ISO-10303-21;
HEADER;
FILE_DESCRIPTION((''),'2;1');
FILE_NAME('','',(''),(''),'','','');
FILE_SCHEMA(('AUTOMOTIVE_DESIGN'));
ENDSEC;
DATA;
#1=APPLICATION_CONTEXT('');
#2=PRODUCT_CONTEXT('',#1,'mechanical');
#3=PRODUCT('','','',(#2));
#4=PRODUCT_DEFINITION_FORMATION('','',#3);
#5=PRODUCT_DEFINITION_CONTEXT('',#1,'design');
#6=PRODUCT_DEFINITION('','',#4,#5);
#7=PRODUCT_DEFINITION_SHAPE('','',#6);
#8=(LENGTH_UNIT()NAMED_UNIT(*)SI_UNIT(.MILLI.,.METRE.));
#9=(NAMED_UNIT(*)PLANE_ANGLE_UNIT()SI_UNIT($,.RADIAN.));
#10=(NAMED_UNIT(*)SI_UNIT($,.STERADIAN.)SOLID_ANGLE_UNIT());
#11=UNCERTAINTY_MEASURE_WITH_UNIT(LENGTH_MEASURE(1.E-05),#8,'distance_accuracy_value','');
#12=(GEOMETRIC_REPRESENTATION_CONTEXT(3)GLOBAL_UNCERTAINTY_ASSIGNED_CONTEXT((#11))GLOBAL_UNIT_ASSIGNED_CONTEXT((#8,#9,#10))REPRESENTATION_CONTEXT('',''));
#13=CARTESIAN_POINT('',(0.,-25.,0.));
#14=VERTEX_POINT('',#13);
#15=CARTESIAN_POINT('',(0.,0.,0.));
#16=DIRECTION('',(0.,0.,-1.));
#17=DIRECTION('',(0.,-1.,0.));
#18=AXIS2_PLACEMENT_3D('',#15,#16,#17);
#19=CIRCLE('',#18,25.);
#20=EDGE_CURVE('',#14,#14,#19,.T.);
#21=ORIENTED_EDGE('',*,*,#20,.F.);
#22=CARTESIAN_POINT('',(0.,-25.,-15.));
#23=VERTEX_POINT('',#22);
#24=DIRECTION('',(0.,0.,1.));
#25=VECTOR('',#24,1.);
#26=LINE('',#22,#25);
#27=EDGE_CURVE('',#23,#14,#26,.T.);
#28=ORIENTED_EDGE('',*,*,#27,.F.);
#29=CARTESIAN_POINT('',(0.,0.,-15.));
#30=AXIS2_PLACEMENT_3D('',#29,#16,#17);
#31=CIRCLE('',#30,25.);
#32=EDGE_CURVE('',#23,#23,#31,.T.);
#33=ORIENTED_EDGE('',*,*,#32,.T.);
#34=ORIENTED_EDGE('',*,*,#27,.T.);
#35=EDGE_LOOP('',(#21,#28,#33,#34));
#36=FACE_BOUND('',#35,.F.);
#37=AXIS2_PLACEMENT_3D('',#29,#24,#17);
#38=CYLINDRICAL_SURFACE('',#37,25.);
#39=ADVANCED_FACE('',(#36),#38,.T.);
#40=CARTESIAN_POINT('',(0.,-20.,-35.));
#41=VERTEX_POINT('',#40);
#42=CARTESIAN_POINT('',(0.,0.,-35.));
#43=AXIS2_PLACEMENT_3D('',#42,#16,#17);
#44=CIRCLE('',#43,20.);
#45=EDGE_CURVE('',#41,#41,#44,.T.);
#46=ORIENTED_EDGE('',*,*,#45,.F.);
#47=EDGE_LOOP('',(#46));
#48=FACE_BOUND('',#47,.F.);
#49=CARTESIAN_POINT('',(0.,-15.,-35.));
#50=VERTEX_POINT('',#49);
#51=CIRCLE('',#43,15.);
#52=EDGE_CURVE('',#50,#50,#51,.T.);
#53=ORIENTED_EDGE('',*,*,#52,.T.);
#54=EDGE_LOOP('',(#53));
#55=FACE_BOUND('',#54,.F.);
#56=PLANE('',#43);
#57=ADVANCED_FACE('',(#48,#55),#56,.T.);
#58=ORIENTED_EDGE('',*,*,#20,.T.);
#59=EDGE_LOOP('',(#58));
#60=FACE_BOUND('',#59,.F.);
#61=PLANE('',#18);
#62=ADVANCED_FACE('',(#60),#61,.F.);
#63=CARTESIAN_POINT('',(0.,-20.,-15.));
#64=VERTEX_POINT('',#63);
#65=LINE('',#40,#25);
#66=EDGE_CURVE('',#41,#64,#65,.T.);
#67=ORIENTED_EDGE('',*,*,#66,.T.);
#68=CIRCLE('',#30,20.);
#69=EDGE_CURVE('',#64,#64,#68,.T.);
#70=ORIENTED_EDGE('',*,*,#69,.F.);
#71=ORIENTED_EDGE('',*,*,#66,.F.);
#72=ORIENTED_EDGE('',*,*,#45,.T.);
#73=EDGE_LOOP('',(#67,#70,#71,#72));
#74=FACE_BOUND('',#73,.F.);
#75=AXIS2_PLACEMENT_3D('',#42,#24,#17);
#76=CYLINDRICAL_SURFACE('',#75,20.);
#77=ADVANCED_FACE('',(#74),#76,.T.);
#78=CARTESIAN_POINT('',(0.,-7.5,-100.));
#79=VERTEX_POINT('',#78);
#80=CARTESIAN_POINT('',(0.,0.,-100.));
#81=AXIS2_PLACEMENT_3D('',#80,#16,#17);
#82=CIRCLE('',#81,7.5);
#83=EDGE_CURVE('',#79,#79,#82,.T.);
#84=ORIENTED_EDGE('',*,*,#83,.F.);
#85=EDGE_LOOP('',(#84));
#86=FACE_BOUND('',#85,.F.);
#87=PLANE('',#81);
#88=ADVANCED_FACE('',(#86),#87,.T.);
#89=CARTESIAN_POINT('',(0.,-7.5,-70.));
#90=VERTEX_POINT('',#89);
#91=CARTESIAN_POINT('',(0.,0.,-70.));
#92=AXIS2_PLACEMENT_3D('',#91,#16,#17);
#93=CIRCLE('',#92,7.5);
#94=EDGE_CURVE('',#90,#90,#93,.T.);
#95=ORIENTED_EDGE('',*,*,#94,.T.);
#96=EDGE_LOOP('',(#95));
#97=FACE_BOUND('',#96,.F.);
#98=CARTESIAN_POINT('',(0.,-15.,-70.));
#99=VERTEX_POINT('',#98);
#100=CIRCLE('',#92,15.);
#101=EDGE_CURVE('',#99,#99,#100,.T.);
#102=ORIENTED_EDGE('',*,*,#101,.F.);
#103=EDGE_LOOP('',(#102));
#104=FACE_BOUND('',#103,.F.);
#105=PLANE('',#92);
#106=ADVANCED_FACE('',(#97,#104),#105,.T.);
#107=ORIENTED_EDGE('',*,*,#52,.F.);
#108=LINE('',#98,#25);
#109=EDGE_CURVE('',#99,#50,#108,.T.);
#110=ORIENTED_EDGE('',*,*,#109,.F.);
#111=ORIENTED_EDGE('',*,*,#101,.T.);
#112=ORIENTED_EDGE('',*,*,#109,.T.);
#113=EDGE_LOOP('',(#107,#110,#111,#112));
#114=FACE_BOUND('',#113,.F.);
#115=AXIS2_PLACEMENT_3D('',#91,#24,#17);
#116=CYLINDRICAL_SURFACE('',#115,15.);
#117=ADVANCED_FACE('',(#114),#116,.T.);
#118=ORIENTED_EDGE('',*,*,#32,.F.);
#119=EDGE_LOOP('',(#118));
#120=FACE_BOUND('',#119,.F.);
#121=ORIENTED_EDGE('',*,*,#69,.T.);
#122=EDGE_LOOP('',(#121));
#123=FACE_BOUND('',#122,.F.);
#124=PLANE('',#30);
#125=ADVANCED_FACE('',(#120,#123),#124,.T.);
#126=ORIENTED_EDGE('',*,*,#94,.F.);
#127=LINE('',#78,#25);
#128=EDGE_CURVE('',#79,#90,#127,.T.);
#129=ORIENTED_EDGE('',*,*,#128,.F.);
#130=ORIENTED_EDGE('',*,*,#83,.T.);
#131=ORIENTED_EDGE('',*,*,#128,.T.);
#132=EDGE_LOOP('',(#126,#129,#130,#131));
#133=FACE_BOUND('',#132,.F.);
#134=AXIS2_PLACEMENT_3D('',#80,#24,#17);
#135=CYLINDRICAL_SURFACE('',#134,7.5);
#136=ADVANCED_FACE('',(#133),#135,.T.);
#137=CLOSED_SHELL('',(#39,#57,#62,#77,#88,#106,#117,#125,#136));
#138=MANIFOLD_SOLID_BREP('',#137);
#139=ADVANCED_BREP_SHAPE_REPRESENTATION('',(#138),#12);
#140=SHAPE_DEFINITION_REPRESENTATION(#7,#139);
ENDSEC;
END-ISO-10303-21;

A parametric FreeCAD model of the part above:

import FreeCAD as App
import Part
import Sketcher
from FreeCAD import Vector
Q = App.Units.Quantity

doc = App.newDocument("Part")
params = doc.addObject("Spreadsheet::Sheet", "Params")
for row, (alias, value) in enumerate([
    ("sketch1_height", "100 mm"),
    ("sketch1_height2", "30 mm"),
    ("sketch1_height3", "35 mm"),
    ("sketch1_height4", "20 mm"),
    ("revolution_angle", "360 deg"),
], start=1):
    params.set(f"A{row}", alias)
    params.set(f"B{row}", "=" + value)
    params.setAlias(f"B{row}", alias)

body = doc.addObject("PartDesign::Body", "Body")

sketch1 = body.newObject("Sketcher::SketchObject", "Sketch")
sketch1.AttachmentSupport = (doc.getObject("YZ_Plane"), [""])
sketch1.MapMode = "FlatFace"
sketch1.addGeometry([
    Part.LineSegment(Vector(25, 0, 0), Vector(0, 0, 0)),
    Part.LineSegment(Vector(0, 0, 0), Vector(0, -100, 0)),
    Part.LineSegment(Vector(0, -100, 0), Vector(8, -100, 0)),
    Part.LineSegment(Vector(8, -100, 0), Vector(8, -70, 0)),
    Part.LineSegment(Vector(8, -70, 0), Vector(15, -70, 0)),
    Part.LineSegment(Vector(15, -70, 0), Vector(15, -35, 0)),
    Part.LineSegment(Vector(15, -35, 0), Vector(20, -35, 0)),
    Part.LineSegment(Vector(20, -35, 0), Vector(20, -15, 0)),
    Part.LineSegment(Vector(20, -15, 0), Vector(25, -15, 0)),
    Part.LineSegment(Vector(25, -15, 0), Vector(25, 0, 0)),
], False)
sketch1.addConstraint([
    Sketcher.Constraint("Coincident", 0, 2, 1, 1),
    Sketcher.Constraint("Coincident", 1, 2, 2, 1),
    Sketcher.Constraint("Coincident", 2, 2, 3, 1),
    Sketcher.Constraint("Coincident", 3, 2, 4, 1),
    Sketcher.Constraint("Coincident", 4, 2, 5, 1),
    Sketcher.Constraint("Coincident", 5, 2, 6, 1),
    Sketcher.Constraint("Coincident", 6, 2, 7, 1),
    Sketcher.Constraint("Coincident", 7, 2, 8, 1),
    Sketcher.Constraint("Coincident", 8, 2, 9, 1),
    Sketcher.Constraint("Coincident", 9, 2, 0, 1),
    Sketcher.Constraint("Horizontal", 0),
    Sketcher.Constraint("Vertical", 1),
    Sketcher.Constraint("Horizontal", 2),
    Sketcher.Constraint("Vertical", 3),
    Sketcher.Constraint("Horizontal", 4),
    Sketcher.Constraint("Vertical", 5),
    Sketcher.Constraint("Horizontal", 6),
    Sketcher.Constraint("Vertical", 7),
    Sketcher.Constraint("Horizontal", 8),
    Sketcher.Constraint("Vertical", 9),
    Sketcher.Constraint("Coincident", 0, 2, -1, 1),
    Sketcher.Constraint("Equal", 2, 4),
    Sketcher.Constraint("Equal", 6, 8),
    Sketcher.Constraint("DistanceY", 1, 2, 1, 1, Q("100 mm")),
    Sketcher.Constraint("DistanceY", 3, 1, 3, 2, Q("30 mm")),
    Sketcher.Constraint("DistanceY", 5, 1, 5, 2, Q("35 mm")),
    Sketcher.Constraint("DistanceY", 7, 1, 7, 2, Q("20 mm")),
    Sketcher.Constraint("DistanceX", -1, 1, 4, 2, Q("15 mm")),
    Sketcher.Constraint("DistanceX", -1, 1, 6, 2, Q("20 mm")),
])
sketch1.setExpression("Constraints[23]", "Params.sketch1_height")
sketch1.setExpression("Constraints[24]", "Params.sketch1_height2")
sketch1.setExpression("Constraints[25]", "Params.sketch1_height3")
sketch1.setExpression("Constraints[26]", "Params.sketch1_height4")
revolution = body.newObject("PartDesign::Revolution", "Revolution")
revolution.Profile = sketch1
revolution.ReferenceAxis = (sketch1, ["V_Axis"])
revolution.setExpression("Angle", "Params.revolution_angle")

doc.recompute()
